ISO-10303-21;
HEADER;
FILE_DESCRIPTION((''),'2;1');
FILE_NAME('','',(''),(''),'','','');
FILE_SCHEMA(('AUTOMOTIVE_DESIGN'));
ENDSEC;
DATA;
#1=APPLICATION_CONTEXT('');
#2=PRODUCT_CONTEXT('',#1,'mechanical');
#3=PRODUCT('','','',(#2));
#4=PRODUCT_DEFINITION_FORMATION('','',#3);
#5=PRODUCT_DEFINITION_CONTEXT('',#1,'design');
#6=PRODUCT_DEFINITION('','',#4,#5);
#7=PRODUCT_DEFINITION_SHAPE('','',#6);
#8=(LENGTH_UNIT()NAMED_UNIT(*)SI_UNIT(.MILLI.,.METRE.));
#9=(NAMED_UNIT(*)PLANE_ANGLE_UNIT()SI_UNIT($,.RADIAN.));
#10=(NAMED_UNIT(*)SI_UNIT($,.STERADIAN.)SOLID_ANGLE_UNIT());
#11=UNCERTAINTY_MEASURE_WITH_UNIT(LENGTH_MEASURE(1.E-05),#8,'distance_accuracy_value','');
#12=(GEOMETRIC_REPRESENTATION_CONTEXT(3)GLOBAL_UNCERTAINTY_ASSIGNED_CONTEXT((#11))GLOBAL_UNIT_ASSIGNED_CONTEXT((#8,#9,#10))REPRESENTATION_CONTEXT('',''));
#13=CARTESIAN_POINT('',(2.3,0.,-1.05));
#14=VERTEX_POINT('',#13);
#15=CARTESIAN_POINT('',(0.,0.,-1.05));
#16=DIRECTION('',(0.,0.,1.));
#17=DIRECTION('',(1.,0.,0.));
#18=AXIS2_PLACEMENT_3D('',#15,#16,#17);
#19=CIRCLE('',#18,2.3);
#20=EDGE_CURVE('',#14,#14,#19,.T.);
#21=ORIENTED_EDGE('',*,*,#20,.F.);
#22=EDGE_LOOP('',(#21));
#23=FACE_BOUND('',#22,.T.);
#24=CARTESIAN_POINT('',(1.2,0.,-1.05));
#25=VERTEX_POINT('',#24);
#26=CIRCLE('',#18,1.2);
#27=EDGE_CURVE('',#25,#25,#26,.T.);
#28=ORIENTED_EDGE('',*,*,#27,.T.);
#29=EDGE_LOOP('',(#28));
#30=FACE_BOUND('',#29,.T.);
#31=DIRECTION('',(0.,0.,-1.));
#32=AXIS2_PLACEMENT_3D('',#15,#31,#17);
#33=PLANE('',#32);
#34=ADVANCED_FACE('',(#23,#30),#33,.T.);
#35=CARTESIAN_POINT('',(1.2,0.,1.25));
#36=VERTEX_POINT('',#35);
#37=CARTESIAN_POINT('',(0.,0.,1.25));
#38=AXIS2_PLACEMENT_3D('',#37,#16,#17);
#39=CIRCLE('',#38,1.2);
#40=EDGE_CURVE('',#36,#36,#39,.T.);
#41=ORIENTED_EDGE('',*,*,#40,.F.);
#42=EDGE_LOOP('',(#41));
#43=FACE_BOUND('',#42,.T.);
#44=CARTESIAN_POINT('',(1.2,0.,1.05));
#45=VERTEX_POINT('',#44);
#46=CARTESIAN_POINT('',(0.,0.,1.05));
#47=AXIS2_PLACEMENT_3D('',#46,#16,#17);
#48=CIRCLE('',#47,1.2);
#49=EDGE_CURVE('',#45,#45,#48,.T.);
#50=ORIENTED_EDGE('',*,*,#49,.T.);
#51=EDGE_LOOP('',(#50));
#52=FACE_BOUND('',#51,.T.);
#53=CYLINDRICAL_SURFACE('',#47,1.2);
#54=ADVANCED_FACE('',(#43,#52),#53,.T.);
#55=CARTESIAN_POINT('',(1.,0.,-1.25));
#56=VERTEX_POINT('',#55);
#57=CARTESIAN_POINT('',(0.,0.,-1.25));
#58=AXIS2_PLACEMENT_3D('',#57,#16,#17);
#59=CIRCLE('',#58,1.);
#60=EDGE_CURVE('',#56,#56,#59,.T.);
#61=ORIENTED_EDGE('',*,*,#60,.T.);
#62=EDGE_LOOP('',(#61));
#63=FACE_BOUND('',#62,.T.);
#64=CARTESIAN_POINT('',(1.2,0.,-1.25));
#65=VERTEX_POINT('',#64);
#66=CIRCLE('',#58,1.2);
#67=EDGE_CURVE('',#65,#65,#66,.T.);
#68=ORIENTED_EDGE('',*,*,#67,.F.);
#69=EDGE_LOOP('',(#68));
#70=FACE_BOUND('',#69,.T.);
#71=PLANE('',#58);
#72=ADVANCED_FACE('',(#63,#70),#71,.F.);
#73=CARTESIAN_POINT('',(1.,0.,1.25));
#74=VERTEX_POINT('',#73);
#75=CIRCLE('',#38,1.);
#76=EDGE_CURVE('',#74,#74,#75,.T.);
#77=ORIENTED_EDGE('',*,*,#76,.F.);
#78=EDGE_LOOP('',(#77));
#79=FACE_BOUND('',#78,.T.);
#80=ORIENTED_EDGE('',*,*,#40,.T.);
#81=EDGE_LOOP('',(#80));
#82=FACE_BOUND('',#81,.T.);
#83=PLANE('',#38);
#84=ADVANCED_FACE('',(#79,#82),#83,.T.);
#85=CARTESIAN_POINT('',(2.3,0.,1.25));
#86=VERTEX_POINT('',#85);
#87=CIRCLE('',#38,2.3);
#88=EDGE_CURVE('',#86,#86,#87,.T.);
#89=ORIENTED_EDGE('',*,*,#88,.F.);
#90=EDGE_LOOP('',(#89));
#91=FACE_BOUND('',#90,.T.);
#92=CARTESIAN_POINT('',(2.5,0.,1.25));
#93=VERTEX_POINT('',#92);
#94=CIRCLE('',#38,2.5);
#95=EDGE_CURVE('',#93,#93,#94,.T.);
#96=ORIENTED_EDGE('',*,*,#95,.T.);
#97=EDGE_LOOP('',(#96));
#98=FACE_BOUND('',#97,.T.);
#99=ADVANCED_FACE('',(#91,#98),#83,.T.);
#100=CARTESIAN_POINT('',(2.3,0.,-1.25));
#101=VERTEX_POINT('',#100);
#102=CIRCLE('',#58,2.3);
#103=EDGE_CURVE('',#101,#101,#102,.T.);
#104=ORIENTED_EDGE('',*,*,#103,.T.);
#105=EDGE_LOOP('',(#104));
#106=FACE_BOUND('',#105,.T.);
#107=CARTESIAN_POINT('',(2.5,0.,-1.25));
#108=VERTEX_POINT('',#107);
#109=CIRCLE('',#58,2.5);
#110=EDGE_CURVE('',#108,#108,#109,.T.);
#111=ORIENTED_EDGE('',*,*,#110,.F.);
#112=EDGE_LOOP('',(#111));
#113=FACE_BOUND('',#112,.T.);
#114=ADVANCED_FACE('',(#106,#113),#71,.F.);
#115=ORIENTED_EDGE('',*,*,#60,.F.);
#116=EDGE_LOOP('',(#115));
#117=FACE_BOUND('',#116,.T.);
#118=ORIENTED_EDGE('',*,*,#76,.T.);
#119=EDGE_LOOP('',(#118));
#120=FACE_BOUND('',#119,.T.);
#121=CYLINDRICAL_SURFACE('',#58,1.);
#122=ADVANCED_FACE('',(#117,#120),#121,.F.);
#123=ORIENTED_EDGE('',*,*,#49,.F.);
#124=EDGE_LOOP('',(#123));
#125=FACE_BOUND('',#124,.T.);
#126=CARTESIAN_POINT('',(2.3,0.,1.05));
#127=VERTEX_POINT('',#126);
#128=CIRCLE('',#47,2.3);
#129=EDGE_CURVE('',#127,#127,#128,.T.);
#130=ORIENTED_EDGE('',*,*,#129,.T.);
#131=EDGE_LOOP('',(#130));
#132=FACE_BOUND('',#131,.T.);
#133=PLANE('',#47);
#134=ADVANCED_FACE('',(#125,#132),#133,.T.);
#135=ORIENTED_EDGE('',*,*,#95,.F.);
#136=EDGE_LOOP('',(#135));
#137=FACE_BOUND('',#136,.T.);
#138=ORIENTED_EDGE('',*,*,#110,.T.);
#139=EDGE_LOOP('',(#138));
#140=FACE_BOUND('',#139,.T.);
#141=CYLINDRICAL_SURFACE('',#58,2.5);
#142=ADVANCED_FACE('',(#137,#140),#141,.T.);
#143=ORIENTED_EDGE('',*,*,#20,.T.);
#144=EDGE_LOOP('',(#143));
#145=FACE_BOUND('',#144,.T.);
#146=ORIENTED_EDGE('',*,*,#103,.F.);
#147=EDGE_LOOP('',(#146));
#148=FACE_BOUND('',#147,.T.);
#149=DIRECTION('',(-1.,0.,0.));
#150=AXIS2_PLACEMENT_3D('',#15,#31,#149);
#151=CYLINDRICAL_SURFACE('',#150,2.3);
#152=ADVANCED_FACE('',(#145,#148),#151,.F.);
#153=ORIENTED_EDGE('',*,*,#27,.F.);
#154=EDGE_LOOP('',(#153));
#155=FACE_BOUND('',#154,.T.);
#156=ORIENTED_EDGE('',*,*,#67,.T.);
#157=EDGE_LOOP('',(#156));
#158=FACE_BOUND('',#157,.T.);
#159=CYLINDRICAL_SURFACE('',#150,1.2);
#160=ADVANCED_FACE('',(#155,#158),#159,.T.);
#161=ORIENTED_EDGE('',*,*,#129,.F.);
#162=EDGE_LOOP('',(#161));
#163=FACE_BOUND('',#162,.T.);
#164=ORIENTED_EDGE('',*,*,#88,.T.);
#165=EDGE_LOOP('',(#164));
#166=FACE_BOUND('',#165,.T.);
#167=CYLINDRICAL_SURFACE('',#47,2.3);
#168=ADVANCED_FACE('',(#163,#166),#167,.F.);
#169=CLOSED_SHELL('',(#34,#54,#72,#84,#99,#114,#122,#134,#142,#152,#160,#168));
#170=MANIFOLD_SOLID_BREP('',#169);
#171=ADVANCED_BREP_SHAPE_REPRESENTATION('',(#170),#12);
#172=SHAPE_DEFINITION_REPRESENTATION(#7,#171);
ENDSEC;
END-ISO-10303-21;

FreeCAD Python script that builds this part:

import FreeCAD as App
import Part
import Sketcher

V = App.Vector
Q = App.Units.Quantity

doc = App.newDocument("Part")
body = doc.addObject("PartDesign::Body", "Body")

# Sketch on XY plane
sketch1 = body.newObject("Sketcher::SketchObject", "Sketch")
sketch1.AttachmentSupport = (doc.getObject("XY_Plane"), [""])
sketch1.MapMode = "FlatFace"
sketch1.addGeometry(Part.Circle(V(0, 0, 0), V(0, 0, 1), 2.5), False)
sketch1.addGeometry(Part.Circle(V(0, 0, 0), V(0, 0, 1), 1), False)
sketch1.addConstraint(Sketcher.Constraint("Coincident", 0, 3, -1, 1))
sketch1.addConstraint(Sketcher.Constraint("Coincident", 1, 3, -1, 1))
sketch1.addConstraint(Sketcher.Constraint("Diameter", 0, Q("5 mm")))
sketch1.addConstraint(Sketcher.Constraint("Diameter", 1, Q("2 mm")))
pad1 = body.newObject("PartDesign::Pad", "Pad")
pad1.Profile = sketch1
pad1.Type = "TwoLengths"
pad1.Length = 1.25
pad1.Length2 = 1.25

# Sketch on XY plane
sketch2 = body.newObject("Sketcher::SketchObject", "Sketch001")
sketch2.AttachmentSupport = (doc.getObject("XY_Plane"), [""])
sketch2.MapMode = "FlatFace"
sketch2.AttachmentOffset = App.Placement(V(0, 0, 1.25), App.Rotation())
sketch2.addGeometry(Part.Circle(V(0, 0, 0), V(0, 0, 1), 2.3), False)
sketch2.addGeometry(Part.Circle(V(0, 0, 0), V(0, 0, 1), 1.2), False)
sketch2.addConstraint(Sketcher.Constraint("Coincident", 0, 3, -1, 1))
sketch2.addConstraint(Sketcher.Constraint("Coincident", 1, 3, -1, 1))
sketch2.addConstraint(Sketcher.Constraint("Diameter", 0, Q("4.6 mm")))
sketch2.addConstraint(Sketcher.Constraint("Diameter", 1, Q("2.4 mm")))
pocket1 = body.newObject("PartDesign::Pocket", "Pocket")
pocket1.Profile = sketch2
pocket1.Length = 0.2
doc.recompute()

mirrored = body.newObject("PartDesign::Mirrored", "Mirrored")
mirrored.Originals = [pocket1]
mirrored.MirrorPlane = (doc.getObject("XY_Plane"), [""])
body.Tip = mirrored

doc.recompute()
